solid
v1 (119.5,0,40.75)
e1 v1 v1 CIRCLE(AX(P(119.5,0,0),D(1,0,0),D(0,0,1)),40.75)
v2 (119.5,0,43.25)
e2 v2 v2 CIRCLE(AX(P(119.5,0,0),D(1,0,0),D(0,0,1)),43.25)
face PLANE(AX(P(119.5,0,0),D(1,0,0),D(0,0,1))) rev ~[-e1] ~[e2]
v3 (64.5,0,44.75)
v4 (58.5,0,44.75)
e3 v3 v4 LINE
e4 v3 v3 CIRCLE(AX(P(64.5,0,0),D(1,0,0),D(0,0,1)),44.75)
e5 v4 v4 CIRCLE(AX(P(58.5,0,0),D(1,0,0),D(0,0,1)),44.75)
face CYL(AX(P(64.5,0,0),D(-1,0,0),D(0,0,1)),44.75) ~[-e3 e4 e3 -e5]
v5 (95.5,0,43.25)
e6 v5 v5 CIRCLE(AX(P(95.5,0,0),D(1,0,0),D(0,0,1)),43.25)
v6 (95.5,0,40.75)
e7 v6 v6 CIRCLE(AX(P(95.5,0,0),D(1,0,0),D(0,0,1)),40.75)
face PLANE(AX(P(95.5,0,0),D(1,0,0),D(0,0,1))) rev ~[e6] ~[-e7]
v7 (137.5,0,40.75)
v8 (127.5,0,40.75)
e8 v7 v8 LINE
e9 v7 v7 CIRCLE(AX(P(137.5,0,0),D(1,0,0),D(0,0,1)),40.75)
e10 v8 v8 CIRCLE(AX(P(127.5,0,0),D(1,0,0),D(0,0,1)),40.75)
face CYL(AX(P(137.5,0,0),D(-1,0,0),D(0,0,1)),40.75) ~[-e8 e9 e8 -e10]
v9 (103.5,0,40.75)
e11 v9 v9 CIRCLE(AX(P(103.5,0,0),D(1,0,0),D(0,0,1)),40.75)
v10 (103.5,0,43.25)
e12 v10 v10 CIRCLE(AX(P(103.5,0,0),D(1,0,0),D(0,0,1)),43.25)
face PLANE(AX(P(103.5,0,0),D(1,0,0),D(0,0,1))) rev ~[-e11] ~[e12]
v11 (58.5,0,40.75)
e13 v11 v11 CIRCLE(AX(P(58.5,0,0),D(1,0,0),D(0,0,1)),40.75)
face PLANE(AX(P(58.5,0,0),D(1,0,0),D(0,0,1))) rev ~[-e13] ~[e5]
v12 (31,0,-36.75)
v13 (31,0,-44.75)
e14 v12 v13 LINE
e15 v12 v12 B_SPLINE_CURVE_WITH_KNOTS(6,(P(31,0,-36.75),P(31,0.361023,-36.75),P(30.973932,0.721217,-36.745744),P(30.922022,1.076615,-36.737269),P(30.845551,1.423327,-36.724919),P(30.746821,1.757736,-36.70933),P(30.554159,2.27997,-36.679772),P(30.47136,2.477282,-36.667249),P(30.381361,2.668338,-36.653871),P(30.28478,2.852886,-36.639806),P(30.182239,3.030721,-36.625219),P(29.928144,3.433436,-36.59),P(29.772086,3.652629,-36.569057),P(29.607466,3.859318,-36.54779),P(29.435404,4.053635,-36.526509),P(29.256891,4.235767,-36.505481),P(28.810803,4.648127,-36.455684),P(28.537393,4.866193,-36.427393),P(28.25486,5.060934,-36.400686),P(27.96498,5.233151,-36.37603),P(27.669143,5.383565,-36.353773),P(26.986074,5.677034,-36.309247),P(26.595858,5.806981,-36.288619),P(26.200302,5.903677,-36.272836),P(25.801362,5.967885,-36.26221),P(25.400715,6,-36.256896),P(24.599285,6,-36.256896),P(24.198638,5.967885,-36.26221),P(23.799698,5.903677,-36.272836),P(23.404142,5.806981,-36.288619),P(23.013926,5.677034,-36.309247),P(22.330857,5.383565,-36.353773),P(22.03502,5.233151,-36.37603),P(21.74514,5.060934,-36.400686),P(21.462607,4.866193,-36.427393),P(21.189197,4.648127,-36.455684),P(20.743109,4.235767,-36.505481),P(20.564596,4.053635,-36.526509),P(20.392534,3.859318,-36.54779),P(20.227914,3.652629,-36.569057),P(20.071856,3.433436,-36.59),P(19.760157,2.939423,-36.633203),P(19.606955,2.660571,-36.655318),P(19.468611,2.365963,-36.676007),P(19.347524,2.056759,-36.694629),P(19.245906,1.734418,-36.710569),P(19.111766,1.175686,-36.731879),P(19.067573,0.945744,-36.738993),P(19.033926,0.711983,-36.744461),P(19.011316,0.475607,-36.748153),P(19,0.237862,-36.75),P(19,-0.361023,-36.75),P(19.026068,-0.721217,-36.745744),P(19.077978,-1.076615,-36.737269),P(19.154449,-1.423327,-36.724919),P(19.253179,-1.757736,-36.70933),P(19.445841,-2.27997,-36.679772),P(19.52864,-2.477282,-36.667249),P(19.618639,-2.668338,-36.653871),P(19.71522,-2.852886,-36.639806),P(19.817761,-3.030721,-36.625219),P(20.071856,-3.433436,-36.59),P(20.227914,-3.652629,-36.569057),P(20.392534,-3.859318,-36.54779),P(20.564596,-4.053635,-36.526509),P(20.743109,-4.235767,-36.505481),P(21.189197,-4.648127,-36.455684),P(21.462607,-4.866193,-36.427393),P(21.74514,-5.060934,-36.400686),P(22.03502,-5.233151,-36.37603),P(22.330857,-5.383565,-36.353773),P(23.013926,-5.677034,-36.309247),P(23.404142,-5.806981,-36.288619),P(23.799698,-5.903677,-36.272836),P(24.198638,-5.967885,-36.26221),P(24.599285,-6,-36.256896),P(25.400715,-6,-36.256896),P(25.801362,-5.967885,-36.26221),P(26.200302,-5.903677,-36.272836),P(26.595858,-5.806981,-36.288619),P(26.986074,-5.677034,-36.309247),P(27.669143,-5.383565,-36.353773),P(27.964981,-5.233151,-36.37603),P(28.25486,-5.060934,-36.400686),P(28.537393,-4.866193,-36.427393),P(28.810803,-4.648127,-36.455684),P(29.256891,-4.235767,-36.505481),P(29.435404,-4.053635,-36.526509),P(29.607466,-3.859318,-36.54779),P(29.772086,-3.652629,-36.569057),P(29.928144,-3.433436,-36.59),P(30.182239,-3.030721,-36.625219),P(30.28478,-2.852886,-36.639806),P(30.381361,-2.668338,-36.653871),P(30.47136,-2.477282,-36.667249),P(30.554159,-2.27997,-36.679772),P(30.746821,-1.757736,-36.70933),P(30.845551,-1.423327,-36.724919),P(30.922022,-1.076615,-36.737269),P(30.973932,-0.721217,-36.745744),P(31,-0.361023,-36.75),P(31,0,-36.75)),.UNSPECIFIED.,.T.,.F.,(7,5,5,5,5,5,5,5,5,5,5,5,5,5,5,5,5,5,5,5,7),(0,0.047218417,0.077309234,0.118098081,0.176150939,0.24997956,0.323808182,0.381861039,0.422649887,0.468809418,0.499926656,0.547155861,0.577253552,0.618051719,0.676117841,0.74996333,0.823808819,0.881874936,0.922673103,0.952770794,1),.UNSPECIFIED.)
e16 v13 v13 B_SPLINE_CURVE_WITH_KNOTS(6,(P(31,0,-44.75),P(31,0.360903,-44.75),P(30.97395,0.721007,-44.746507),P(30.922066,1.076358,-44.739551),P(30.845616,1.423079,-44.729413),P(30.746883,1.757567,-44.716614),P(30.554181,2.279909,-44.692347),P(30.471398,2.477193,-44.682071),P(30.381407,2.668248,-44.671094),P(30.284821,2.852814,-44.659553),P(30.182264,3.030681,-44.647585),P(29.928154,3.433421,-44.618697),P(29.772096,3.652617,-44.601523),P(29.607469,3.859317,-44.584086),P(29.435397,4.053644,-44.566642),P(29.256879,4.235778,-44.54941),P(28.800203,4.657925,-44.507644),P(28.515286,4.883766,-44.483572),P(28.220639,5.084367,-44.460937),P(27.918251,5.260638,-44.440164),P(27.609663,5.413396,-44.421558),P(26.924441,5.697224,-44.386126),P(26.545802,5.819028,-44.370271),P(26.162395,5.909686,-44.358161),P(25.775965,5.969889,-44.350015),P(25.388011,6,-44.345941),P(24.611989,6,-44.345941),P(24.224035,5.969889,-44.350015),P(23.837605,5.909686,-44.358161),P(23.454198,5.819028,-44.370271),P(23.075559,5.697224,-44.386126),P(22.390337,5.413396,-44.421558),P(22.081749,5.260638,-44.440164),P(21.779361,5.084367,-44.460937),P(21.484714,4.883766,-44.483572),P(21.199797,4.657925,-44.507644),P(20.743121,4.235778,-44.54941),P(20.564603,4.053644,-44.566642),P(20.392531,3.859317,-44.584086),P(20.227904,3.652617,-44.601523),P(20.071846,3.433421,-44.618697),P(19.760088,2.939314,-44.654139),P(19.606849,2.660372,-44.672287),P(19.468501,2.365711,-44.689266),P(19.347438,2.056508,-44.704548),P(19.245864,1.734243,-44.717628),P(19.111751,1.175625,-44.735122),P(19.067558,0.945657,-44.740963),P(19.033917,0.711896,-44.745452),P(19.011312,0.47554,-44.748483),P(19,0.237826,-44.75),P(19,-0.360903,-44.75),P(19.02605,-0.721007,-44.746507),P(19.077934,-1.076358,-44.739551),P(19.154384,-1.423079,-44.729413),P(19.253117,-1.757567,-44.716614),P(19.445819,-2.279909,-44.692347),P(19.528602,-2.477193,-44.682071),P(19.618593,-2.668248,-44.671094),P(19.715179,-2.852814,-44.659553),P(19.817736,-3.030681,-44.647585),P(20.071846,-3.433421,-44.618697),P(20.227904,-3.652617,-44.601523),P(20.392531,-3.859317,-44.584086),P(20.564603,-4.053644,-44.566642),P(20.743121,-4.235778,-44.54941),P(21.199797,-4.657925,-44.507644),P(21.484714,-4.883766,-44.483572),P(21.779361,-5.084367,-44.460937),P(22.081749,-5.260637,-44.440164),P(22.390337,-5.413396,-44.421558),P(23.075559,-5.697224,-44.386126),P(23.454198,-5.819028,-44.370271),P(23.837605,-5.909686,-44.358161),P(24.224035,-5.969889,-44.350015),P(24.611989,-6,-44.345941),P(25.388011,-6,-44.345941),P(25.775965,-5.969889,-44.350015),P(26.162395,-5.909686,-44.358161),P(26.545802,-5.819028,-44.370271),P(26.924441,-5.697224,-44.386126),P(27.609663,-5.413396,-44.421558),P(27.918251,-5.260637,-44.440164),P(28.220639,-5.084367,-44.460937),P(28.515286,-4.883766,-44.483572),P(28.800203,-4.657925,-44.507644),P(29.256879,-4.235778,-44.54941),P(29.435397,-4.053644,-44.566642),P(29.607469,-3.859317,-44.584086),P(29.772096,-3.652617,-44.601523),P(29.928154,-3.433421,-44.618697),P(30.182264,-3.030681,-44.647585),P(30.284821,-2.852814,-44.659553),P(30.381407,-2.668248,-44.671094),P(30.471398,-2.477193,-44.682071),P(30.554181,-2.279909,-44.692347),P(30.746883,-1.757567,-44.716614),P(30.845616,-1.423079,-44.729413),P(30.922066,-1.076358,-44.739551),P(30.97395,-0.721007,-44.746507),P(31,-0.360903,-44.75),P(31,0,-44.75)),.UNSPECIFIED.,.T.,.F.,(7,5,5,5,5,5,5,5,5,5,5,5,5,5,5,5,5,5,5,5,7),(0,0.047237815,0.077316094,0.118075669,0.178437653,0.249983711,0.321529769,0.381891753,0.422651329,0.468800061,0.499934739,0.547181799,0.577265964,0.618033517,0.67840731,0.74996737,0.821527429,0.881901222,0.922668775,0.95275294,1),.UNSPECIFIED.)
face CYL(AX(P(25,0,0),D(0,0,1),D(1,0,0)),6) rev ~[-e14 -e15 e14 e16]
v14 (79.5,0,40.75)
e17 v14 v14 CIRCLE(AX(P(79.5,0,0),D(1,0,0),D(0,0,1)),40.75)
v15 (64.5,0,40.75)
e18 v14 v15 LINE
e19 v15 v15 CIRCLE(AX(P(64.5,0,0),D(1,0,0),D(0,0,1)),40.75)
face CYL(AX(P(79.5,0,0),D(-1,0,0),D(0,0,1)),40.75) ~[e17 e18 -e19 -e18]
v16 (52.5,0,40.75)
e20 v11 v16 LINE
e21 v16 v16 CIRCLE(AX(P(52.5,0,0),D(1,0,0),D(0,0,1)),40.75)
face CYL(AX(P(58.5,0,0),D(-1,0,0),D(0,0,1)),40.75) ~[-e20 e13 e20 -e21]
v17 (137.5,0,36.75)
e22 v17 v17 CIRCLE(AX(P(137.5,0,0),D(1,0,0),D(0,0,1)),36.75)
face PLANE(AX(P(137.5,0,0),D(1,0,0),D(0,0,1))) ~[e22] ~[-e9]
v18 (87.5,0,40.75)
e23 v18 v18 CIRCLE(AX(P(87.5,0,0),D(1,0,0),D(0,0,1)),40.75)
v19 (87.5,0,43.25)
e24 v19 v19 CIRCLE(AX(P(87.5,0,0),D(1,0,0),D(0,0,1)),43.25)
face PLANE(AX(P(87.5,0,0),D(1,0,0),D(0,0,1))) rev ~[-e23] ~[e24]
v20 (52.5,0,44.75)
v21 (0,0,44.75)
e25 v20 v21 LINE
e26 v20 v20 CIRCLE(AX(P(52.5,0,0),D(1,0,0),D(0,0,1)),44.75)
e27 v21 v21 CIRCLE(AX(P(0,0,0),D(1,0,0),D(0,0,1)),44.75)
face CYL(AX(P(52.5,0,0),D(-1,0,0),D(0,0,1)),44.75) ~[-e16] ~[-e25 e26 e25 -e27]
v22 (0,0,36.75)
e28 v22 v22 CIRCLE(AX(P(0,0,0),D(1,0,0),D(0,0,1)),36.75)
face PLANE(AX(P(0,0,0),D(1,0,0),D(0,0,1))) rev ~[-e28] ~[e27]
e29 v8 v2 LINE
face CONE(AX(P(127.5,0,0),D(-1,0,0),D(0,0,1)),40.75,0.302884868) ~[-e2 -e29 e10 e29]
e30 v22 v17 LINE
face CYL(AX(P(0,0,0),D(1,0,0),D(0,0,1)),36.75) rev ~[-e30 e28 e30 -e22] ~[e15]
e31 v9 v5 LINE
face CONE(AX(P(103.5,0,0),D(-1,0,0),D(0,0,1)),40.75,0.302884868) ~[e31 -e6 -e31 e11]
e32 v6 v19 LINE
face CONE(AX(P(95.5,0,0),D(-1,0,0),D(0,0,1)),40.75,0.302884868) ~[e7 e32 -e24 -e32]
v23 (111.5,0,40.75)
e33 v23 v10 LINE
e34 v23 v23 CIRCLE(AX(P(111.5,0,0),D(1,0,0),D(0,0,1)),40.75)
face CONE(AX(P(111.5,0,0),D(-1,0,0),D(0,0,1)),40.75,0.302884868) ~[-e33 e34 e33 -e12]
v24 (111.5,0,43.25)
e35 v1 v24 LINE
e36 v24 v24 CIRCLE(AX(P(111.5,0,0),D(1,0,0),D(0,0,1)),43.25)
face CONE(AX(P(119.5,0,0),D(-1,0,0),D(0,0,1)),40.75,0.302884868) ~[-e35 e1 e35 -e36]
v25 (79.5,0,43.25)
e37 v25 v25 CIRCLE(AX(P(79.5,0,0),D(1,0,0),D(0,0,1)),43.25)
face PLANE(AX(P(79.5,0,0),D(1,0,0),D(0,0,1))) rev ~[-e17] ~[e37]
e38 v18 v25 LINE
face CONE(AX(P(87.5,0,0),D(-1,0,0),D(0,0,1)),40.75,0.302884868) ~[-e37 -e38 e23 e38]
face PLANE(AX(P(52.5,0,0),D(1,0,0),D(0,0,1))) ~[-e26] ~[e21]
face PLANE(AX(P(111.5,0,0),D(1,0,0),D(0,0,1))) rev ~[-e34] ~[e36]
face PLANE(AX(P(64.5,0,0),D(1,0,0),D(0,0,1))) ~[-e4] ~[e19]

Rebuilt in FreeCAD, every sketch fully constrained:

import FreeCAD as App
import Part
import Sketcher
Q = App.Units.Quantity


def add_polygon(sketch, points):
    """Adds a closed chain of lines whose ends are joined by coincident constraints."""
    first, n = sketch.GeometryCount, len(points)
    for a, b in zip(points, points[1:] + points[:1]):
        sketch.addGeometry(Part.LineSegment(App.Vector(*a, 0), App.Vector(*b, 0)), False)
    for i in range(n):
        sketch.addConstraint(Sketcher.Constraint("Coincident", first + i, 2, first + (i + 1) % n, 1))

doc = App.newDocument("Part")
params = doc.addObject("Spreadsheet::Sheet", "Params")
for row, (alias, value) in enumerate([
    ("sketch1_width", "10 mm"),
    ("sketch1_width2", "15 mm"),
    ("sketch1_width3", "6 mm"),
    ("sketch1_height", "8 mm"),
    ("sketch1_width4", "137.5 mm"),
    ("revolution_angle", "360 deg"),
    ("sketch2_diameter", "12 mm"),
    ("pocket1_length", "100 mm"),
], start=1):
    params.set(f"A{row}", alias)
    params.set(f"B{row}", "=" + value)
    params.setAlias(f"B{row}", alias)

body = doc.addObject("PartDesign::Body", "Body")

sketch1 = body.newObject("Sketcher::SketchObject", "Sketch")
sketch1.AttachmentSupport = (doc.getObject("XZ_Plane"), [""])
sketch1.MapMode = "FlatFace"
add_polygon(sketch1, [(0, 44.8), (0, 36.8), (137.5, 36.8), (137.5, 40.8), (127.5, 40.8), (119.5, 43.2), (119.5, 40.8), (111.5, 43.2), (111.5, 40.8), (103.5, 43.2), (103.5, 40.8), (95.5, 43.2), (95.5, 40.8), (87.5, 43.2), (87.5, 40.8), (79.5, 43.2), (79.5, 40.8), (64.5, 40.8), (64.5, 44.8), (58.5, 44.8), (58.5, 40.8), (52.5, 40.8), (52.5, 44.8)])
sketch1.addConstraint([
    Sketcher.Constraint("Vertical", 0),
    Sketcher.Constraint("Horizontal", 1),
    Sketcher.Constraint("Vertical", 2),
    Sketcher.Constraint("Horizontal", 3),
    Sketcher.Constraint("Vertical", 5),
    Sketcher.Constraint("Vertical", 7),
    Sketcher.Constraint("Vertical", 9),
    Sketcher.Constraint("Vertical", 11),
    Sketcher.Constraint("Vertical", 13),
    Sketcher.Constraint("Vertical", 15),
    Sketcher.Constraint("Horizontal", 16),
    Sketcher.Constraint("Vertical", 17),
    Sketcher.Constraint("Horizontal", 18),
    Sketcher.Constraint("Vertical", 19),
    Sketcher.Constraint("Horizontal", 20),
    Sketcher.Constraint("Vertical", 21),
    Sketcher.Constraint("Horizontal", 22),
    Sketcher.Constraint("PointOnObject", 0, 2, -2),
    Sketcher.Constraint("Parallel", 4, 6),
    Sketcher.Constraint("Parallel", 6, 8),
    Sketcher.Constraint("Parallel", 8, 10),
    Sketcher.Constraint("Parallel", 10, 12),
    Sketcher.Constraint("Parallel", 12, 14),
    Sketcher.Constraint("Horizontal", 3, 2, 5, 2),
    Sketcher.Constraint("Horizontal", 4, 2, 6, 2),
    Sketcher.Constraint("Horizontal", 5, 2, 7, 2),
    Sketcher.Constraint("Horizontal", 6, 2, 8, 2),
    Sketcher.Constraint("Horizontal", 7, 2, 9, 2),
    Sketcher.Constraint("Horizontal", 8, 2, 10, 2),
    Sketcher.Constraint("Horizontal", 9, 2, 11, 2),
    Sketcher.Constraint("Horizontal", 10, 2, 12, 2),
    Sketcher.Constraint("Horizontal", 11, 2, 13, 2),
    Sketcher.Constraint("Horizontal", 12, 2, 14, 2),
    Sketcher.Constraint("Horizontal", 13, 2, 15, 2),
    Sketcher.Constraint("Horizontal", 16, 2, 19, 2),
    Sketcher.Constraint("Horizontal", 18, 2, 21, 2),
    Sketcher.Constraint("Equal", 18, 20),
    Sketcher.Constraint("Equal", 2, 17),
    Sketcher.Constraint("DistanceX", 3, 2, 3, 1, Q("10 mm")),
    Sketcher.Constraint("DistanceX", 16, 2, 16, 1, Q("15 mm")),
    Sketcher.Constraint("DistanceX", 18, 2, 18, 1, Q("6 mm")),
    Sketcher.Constraint("DistanceY", 0, 2, 0, 1, Q("8 mm")),
    Sketcher.Constraint("DistanceX", 1, 1, 1, 2, Q("137.5 mm")),
    Sketcher.Constraint("DistanceX", 22, 2, 22, 1, Q("52.5 mm")),
    Sketcher.Constraint("DistanceY", 5, 2, 5, 1, Q("2.5 mm")),
    Sketcher.Constraint("DistanceY", -1, 1, 0, 2, Q("36.75 mm")),
])
sketch1.setExpression("Constraints[61]", "Params.sketch1_width")
sketch1.setExpression("Constraints[62]", "Params.sketch1_width2")
sketch1.setExpression("Constraints[63]", "Params.sketch1_width3")
sketch1.setExpression("Constraints[64]", "Params.sketch1_height")
sketch1.setExpression("Constraints[65]", "Params.sketch1_width4")
revolution = body.newObject("PartDesign::Revolution", "Revolution")
revolution.Profile = sketch1
revolution.ReferenceAxis = (sketch1, ["H_Axis"])
revolution.setExpression("Angle", "Params.revolution_angle")

sketch2 = body.newObject("Sketcher::SketchObject", "Sketch001")
sketch2.AttachmentSupport = (doc.getObject("XY_Plane"), [""])
sketch2.MapMode = "FlatFace"
sketch2.addGeometry(Part.Circle(App.Vector(25, 0, 0), App.Vector(0, 0, 1), 6), False)
sketch2.addConstraint([
    Sketcher.Constraint("PointOnObject", 0, 3, -1),
    Sketcher.Constraint("Diameter", 0, Q("12 mm")),
    Sketcher.Constraint("DistanceX", -1, 1, 0, 3, Q("25 mm")),
])
sketch2.setExpression("Constraints[1]", "Params.sketch2_diameter")
pocket1 = body.newObject("PartDesign::Pocket", "Pocket")
pocket1.Profile = sketch2
pocket1.setExpression("Length", "Params.pocket1_length")

doc.recompute()
